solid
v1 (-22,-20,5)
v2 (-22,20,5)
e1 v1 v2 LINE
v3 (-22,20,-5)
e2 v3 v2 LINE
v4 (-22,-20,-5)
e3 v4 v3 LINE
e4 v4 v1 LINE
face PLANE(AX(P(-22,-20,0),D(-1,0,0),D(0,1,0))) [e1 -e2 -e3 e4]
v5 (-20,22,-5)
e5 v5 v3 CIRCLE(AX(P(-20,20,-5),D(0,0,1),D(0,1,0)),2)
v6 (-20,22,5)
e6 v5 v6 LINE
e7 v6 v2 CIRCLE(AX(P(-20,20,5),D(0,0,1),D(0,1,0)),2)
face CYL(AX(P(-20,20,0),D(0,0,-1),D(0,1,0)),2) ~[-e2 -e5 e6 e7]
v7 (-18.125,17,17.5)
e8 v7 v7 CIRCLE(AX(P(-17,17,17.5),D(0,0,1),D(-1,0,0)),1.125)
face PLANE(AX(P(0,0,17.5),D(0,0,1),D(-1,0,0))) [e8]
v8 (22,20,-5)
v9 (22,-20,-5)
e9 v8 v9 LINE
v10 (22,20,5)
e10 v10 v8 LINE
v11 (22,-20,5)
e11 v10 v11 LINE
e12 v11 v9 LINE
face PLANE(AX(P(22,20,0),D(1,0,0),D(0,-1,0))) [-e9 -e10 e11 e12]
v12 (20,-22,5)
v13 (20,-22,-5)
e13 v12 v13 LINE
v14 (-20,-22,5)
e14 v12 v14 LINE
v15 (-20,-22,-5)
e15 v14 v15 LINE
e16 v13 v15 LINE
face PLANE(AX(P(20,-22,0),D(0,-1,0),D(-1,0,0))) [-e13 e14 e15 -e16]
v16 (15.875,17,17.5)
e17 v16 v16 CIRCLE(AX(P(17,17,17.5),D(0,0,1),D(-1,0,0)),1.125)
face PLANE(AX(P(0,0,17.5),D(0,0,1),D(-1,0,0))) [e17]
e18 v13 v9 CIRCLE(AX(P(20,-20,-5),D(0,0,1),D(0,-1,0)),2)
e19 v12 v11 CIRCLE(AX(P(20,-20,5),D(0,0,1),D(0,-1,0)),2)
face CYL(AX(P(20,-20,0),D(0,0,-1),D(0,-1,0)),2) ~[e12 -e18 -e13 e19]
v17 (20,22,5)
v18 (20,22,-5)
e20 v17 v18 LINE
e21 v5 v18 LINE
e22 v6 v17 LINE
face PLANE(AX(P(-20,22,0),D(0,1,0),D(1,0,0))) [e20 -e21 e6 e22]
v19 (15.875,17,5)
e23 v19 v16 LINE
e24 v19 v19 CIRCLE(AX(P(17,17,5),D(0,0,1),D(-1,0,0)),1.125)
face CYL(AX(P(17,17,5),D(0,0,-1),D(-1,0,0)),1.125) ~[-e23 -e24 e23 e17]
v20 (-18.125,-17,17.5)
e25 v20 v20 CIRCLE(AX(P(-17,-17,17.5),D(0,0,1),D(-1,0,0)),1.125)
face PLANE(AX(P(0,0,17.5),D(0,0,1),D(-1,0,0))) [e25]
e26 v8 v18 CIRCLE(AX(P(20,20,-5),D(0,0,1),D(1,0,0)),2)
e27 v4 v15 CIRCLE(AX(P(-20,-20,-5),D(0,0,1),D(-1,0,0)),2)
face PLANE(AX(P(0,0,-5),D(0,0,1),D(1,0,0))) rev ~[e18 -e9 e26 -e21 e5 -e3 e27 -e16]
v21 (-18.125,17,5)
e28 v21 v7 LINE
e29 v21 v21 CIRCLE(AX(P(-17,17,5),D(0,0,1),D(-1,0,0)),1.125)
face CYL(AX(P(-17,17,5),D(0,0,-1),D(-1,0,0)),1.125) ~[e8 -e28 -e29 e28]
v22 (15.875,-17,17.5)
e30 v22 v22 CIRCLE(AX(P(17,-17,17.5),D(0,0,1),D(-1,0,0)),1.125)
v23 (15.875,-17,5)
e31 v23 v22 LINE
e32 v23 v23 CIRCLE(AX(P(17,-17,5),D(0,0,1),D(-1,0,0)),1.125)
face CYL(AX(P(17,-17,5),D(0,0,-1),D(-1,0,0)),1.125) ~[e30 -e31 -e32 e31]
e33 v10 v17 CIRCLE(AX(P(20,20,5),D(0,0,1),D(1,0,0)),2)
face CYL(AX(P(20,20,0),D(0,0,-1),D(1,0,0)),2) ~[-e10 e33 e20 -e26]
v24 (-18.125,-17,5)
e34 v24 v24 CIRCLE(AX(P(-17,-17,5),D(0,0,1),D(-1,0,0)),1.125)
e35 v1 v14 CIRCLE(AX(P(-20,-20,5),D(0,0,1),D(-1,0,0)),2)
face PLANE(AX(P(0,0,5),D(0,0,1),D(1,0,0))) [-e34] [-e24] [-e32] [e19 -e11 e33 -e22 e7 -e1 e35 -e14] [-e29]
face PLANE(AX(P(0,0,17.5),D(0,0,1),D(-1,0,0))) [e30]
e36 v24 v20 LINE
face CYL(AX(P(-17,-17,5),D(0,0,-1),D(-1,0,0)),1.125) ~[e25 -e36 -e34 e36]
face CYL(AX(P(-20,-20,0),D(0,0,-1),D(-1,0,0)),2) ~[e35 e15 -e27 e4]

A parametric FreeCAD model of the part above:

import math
import FreeCAD as App
import Part
import Sketcher

V = App.Vector
Q = App.Units.Quantity

doc = App.newDocument("Part")
body = doc.addObject("PartDesign::Body", "Body")

# Sketch on XY plane
sketch1 = doc.addObject("Sketcher::SketchObject", "Sketch")
body.addObject(sketch1)
sketch1.AttachmentSupport = (doc.XY_Plane, [""])
sketch1.MapMode = "FlatFace"
sketch1.addGeometry(Part.LineSegment(V(20, 22, 0), V(-20, 22, 0)), False)
sketch1.addGeometry(Part.ArcOfCircle(Part.Circle(V(-20, 20, 0), V(0, 0, 1), 2), math.radians(90), math.radians(180)), False)
sketch1.addGeometry(Part.LineSegment(V(-22, 20, 0), V(-22, -20, 0)), False)
sketch1.addGeometry(Part.ArcOfCircle(Part.Circle(V(-20, -20, 0), V(0, 0, 1), 2), math.radians(180), math.radians(270)), False)
sketch1.addGeometry(Part.LineSegment(V(-20, -22, 0), V(20, -22, 0)), False)
sketch1.addGeometry(Part.ArcOfCircle(Part.Circle(V(20, -20, 0), V(0, 0, 1), 2), math.radians(-90), math.radians(0)), False)
sketch1.addGeometry(Part.LineSegment(V(22, -20, 0), V(22, 20, 0)), False)
sketch1.addGeometry(Part.ArcOfCircle(Part.Circle(V(20, 20, 0), V(0, 0, 1), 2), math.radians(0), math.radians(90)), False)
sketch1.addConstraint(Sketcher.Constraint("Tangent", 0, 2, 1, 1))
sketch1.addConstraint(Sketcher.Constraint("Tangent", 1, 2, 2, 1))
sketch1.addConstraint(Sketcher.Constraint("Tangent", 2, 2, 3, 1))
sketch1.addConstraint(Sketcher.Constraint("Tangent", 3, 2, 4, 1))
sketch1.addConstraint(Sketcher.Constraint("Tangent", 4, 2, 5, 1))
sketch1.addConstraint(Sketcher.Constraint("Tangent", 5, 2, 6, 1))
sketch1.addConstraint(Sketcher.Constraint("Tangent", 6, 2, 7, 1))
sketch1.addConstraint(Sketcher.Constraint("Tangent", 7, 2, 0, 1))
sketch1.addConstraint(Sketcher.Constraint("Horizontal", 0))
sketch1.addConstraint(Sketcher.Constraint("Vertical", 2))
sketch1.addConstraint(Sketcher.Constraint("Horizontal", 4))
sketch1.addConstraint(Sketcher.Constraint("Vertical", 6))
sketch1.addConstraint(Sketcher.Constraint("Equal", 1, 3))
sketch1.addConstraint(Sketcher.Constraint("Equal", 3, 5))
sketch1.addConstraint(Sketcher.Constraint("Equal", 5, 7))
sketch1.addConstraint(Sketcher.Constraint("Symmetric", 1, 3, 5, 3, -1, 1))
sketch1.addConstraint(Sketcher.Constraint("Equal", 4, 2))
sketch1.addConstraint(Sketcher.Constraint("Radius", 1, Q("2 mm")))
sketch1.addConstraint(Sketcher.Constraint("DistanceX", 0, 2, 0, 1, Q("40 mm")))
pad1 = doc.addObject("PartDesign::Pad", "Pad")
body.addObject(pad1)
pad1.Profile = sketch1
pad1.Length = 10
pad1.Midplane = True

# Sketch on XY plane
sketch2 = doc.addObject("Sketcher::SketchObject", "Sketch001")
body.addObject(sketch2)
sketch2.AttachmentSupport = (doc.XY_Plane, [""])
sketch2.MapMode = "FlatFace"
sketch2.AttachmentOffset = App.Placement(V(0, 0, 5), App.Rotation())
sketch2.addGeometry(Part.Circle(V(-17, 17, 0), V(0, 0, 1), 1.1), False)
sketch2.addGeometry(Part.Circle(V(17, 17, 0), V(0, 0, 1), 1.1), False)
sketch2.addGeometry(Part.Circle(V(-17, -17, 0), V(0, 0, 1), 1.1), False)
sketch2.addGeometry(Part.Circle(V(17, -17, 0), V(0, 0, 1), 1.1), False)
sketch2.addConstraint(Sketcher.Constraint("Equal", 0, 1))
sketch2.addConstraint(Sketcher.Constraint("Equal", 1, 2))
sketch2.addConstraint(Sketcher.Constraint("Equal", 2, 3))
sketch2.addConstraint(Sketcher.Constraint("Symmetric", 1, 3, 2, 3, -1, 1))
sketch2.addConstraint(Sketcher.Constraint("Symmetric", 0, 3, 3, 3, -1, 1))
sketch2.addConstraint(Sketcher.Constraint("Symmetric", 0, 3, 1, 3, -2))
sketch2.addConstraint(Sketcher.Constraint("Diameter", 0, Q("2.25 mm")))
sketch2.addConstraint(Sketcher.Constraint("DistanceX", 0, 3, 1, 3, Q("34 mm")))
sketch2.addConstraint(Sketcher.Constraint("DistanceY", 2, 3, 0, 3, Q("34 mm")))
pad2 = doc.addObject("PartDesign::Pad", "Pad001")
body.addObject(pad2)
pad2.Profile = sketch2
pad2.Length = 12.5

doc.recompute()
